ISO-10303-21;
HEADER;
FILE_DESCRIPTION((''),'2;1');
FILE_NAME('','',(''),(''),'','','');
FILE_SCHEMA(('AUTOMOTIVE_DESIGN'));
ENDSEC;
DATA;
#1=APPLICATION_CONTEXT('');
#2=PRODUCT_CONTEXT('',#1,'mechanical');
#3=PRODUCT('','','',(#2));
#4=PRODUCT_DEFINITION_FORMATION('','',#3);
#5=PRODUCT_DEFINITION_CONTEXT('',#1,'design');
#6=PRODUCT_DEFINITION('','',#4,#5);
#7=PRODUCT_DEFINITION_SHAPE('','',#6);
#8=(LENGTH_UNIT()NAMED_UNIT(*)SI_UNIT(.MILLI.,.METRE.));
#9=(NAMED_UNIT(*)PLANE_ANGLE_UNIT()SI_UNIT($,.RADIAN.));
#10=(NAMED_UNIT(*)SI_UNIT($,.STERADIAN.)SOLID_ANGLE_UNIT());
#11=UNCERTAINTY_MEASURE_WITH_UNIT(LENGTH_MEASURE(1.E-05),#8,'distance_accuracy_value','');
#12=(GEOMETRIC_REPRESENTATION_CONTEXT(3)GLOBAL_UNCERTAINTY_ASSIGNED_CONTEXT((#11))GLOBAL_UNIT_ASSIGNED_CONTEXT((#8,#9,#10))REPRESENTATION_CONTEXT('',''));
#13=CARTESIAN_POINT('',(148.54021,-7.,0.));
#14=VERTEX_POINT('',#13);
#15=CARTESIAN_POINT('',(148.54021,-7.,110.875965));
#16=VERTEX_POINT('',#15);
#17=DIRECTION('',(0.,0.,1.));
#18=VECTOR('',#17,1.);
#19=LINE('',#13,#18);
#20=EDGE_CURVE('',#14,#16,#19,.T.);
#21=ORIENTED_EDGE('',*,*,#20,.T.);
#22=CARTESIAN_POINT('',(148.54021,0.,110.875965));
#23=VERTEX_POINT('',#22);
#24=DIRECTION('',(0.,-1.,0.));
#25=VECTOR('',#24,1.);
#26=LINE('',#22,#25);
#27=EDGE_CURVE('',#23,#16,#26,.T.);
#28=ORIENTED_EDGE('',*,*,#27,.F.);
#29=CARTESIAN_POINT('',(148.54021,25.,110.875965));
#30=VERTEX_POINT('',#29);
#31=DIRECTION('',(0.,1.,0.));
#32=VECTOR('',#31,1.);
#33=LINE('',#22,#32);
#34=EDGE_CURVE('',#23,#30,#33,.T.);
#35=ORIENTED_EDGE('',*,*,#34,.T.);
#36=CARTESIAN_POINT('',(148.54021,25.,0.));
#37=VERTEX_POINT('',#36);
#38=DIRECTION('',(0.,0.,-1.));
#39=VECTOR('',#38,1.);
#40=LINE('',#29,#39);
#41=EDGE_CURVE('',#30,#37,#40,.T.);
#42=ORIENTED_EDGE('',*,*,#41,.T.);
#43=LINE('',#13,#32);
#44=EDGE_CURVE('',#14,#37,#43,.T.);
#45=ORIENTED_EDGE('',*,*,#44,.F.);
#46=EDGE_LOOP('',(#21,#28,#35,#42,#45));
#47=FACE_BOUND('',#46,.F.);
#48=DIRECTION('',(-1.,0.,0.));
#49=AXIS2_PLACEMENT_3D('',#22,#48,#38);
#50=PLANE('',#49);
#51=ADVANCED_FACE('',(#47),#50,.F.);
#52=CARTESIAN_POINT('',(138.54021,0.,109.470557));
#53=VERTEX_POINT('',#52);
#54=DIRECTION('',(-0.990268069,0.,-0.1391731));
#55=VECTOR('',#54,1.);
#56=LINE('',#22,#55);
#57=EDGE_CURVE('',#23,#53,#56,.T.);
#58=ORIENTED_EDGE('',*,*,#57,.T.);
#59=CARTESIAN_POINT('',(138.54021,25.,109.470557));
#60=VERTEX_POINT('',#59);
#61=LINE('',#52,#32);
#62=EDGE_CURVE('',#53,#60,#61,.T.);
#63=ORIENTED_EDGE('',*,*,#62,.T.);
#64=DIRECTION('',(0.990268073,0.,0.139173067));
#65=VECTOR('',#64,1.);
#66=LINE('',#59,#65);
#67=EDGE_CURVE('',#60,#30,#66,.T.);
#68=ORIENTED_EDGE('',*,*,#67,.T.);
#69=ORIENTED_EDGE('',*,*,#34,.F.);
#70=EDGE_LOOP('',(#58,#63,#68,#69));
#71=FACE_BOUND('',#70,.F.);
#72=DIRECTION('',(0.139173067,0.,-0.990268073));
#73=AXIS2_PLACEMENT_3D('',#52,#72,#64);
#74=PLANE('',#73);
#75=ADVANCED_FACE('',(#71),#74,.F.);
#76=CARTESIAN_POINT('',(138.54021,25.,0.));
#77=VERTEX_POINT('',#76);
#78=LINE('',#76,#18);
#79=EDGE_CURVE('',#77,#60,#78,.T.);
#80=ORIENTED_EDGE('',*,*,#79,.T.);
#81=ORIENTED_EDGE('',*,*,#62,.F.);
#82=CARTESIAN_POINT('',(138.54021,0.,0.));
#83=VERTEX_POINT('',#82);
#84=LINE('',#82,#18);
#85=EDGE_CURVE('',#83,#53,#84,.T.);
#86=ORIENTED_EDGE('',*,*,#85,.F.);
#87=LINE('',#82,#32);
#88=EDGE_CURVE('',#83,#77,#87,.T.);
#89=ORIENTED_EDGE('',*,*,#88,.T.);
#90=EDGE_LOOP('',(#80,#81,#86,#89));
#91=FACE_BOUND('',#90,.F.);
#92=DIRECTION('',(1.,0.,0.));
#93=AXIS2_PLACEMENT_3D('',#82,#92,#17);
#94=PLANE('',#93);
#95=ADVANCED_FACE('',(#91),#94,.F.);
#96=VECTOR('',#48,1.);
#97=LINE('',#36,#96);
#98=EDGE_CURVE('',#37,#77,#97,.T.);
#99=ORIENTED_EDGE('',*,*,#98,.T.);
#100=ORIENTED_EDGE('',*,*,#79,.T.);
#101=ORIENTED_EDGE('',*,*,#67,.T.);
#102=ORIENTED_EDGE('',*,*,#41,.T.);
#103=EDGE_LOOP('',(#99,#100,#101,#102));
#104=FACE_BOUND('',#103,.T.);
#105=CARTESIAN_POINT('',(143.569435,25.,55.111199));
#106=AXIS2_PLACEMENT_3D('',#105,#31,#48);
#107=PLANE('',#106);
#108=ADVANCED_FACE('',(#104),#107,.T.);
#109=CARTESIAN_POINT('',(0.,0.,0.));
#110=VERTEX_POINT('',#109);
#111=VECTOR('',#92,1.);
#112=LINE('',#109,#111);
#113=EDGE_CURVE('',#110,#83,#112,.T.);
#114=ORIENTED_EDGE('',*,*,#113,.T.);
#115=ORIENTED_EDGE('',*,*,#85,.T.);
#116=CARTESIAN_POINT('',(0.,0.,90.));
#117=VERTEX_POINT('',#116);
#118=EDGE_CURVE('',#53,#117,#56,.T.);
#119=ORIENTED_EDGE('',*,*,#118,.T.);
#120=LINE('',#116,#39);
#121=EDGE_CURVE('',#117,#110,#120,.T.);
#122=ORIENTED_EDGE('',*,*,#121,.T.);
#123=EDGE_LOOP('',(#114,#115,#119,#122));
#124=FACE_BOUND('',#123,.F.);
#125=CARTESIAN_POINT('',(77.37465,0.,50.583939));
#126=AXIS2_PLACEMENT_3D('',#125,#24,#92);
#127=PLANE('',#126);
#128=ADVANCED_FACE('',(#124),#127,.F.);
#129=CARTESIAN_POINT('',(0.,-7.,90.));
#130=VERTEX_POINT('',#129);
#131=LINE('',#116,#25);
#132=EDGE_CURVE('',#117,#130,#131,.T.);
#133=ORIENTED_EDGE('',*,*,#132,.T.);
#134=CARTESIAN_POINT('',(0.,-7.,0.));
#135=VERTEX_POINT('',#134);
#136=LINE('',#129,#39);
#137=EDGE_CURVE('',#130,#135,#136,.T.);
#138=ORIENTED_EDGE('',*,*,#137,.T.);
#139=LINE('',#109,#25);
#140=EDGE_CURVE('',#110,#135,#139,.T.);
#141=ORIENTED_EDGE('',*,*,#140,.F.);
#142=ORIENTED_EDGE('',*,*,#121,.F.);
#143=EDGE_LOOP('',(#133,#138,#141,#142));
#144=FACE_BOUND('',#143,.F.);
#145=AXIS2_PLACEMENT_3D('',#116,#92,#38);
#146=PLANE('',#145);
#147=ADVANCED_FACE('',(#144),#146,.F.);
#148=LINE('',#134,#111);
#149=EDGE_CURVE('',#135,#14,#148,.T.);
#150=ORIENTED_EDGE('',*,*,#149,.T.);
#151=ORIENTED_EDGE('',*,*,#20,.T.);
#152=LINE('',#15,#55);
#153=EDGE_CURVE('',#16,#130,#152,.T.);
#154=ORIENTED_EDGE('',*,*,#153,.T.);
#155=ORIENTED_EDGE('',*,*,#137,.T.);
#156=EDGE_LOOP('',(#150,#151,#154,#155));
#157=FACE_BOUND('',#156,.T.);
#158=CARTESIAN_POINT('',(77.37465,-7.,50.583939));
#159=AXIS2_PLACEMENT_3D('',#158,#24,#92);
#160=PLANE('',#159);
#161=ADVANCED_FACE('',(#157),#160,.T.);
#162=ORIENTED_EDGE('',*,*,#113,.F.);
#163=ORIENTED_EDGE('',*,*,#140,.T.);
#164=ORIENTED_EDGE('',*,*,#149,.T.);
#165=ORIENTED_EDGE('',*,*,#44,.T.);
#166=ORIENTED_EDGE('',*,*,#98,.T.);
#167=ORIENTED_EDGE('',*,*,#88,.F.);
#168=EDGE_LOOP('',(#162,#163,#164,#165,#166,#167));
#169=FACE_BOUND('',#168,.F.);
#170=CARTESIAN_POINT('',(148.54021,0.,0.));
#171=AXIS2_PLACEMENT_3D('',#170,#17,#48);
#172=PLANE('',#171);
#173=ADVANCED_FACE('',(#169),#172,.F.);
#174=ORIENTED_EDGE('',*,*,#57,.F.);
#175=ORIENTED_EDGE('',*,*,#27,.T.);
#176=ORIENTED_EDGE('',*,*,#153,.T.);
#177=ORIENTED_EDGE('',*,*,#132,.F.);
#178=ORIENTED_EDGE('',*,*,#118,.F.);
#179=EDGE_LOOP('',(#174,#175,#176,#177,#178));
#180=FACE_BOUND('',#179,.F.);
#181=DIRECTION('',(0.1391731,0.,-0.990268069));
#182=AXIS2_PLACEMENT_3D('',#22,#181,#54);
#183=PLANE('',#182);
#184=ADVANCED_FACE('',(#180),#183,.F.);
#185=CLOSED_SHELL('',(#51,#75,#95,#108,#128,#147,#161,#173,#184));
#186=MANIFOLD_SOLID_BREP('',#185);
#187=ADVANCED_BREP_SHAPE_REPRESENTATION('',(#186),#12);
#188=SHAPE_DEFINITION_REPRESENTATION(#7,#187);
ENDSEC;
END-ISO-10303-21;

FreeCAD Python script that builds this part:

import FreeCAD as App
import Part
import Sketcher
Q = App.Units.Quantity

doc = App.newDocument("Part")
body = doc.addObject("PartDesign::Body", "Body")

sketch1 = body.newObject("Sketcher::SketchObject", "Sketch")
sketch1.AttachmentSupport = (doc.getObject("XZ_Plane"), [""])
sketch1.MapMode = "FlatFace"
sketch1.addGeometry(Part.LineSegment(App.Vector(0, 90, 0), App.Vector(0, 0, 0)), False)
sketch1.addGeometry(Part.LineSegment(App.Vector(0, 0, 0), App.Vector(148.54021, 0, 0)), False)
sketch1.addGeometry(Part.LineSegment(App.Vector(148.54021, 0, 0), App.Vector(148.54021, 110.875965, 0)), False)
sketch1.addGeometry(Part.LineSegment(App.Vector(148.54021, 110.875965, 0), App.Vector(0, 90, 0)), False)
sketch1.addConstraint(Sketcher.Constraint("Coincident", 0, 2, 1, 1))
sketch1.addConstraint(Sketcher.Constraint("Coincident", 1, 2, 2, 1))
sketch1.addConstraint(Sketcher.Constraint("Coincident", 2, 2, 3, 1))
sketch1.addConstraint(Sketcher.Constraint("Coincident", 3, 2, 0, 1))
sketch1.addConstraint(Sketcher.Constraint("Vertical", 0))
sketch1.addConstraint(Sketcher.Constraint("Horizontal", 1))
sketch1.addConstraint(Sketcher.Constraint("Vertical", 2))
sketch1.addConstraint(Sketcher.Constraint("Coincident", 0, 2, -1, 1))
sketch1.addConstraint(Sketcher.Constraint("DistanceY", 0, 2, 0, 1, 90.0))
sketch1.addConstraint(Sketcher.Constraint("Angle", 3, Q("-172 deg")))
sketch1.addConstraint(Sketcher.Constraint("Distance", 3, 150.0))
pad1 = body.newObject("PartDesign::Pad", "Pad")
pad1.Profile = sketch1
pad1.Length = 7

sketch2 = body.newObject("Sketcher::SketchObject", "Sketch001")
sketch2.AttachmentSupport = (doc.getObject("XZ_Plane"), [""])
sketch2.MapMode = "FlatFace"
sketch2.addGeometry(Part.LineSegment(App.Vector(138.54021, 109.470557, 0), App.Vector(148.54021, 110.875965, 0)), False)
sketch2.addGeometry(Part.LineSegment(App.Vector(148.54021, 110.875965, 0), App.Vector(148.54021, 0, 0)), False)
sketch2.addGeometry(Part.LineSegment(App.Vector(148.54021, 0, 0), App.Vector(138.54021, 0, 0)), False)
sketch2.addGeometry(Part.LineSegment(App.Vector(138.54021, 0, 0), App.Vector(138.54021, 109.470557, 0)), False)
sketch2.addConstraint(Sketcher.Constraint("Coincident", 0, 2, 1, 1))
sketch2.addConstraint(Sketcher.Constraint("Coincident", 1, 2, 2, 1))
sketch2.addConstraint(Sketcher.Constraint("Coincident", 2, 2, 3, 1))
sketch2.addConstraint(Sketcher.Constraint("Coincident", 3, 2, 0, 1))
sketch2.addConstraint(Sketcher.Constraint("Vertical", 1))
sketch2.addConstraint(Sketcher.Constraint("Horizontal", 2))
sketch2.addConstraint(Sketcher.Constraint("Vertical", 3))
sketch2.addConstraint(Sketcher.Constraint("PointOnObject", 1, 2, -1))
sketch2.addConstraint(Sketcher.Constraint("DistanceX", 2, 2, 2, 1, 10.0))
sketch2.addConstraint(Sketcher.Constraint("Angle", 0, Q("7.999998 deg")))
sketch2.addConstraint(Sketcher.Constraint("DistanceY", 1, 2, 1, 1, 110.875965))
sketch2.addConstraint(Sketcher.Constraint("DistanceX", -1, 1, 0, 2, 148.54021))
pad2 = body.newObject("PartDesign::Pad", "Pad001")
pad2.Profile = sketch2
pad2.Length = 25
pad2.Reversed = True

doc.recompute()
